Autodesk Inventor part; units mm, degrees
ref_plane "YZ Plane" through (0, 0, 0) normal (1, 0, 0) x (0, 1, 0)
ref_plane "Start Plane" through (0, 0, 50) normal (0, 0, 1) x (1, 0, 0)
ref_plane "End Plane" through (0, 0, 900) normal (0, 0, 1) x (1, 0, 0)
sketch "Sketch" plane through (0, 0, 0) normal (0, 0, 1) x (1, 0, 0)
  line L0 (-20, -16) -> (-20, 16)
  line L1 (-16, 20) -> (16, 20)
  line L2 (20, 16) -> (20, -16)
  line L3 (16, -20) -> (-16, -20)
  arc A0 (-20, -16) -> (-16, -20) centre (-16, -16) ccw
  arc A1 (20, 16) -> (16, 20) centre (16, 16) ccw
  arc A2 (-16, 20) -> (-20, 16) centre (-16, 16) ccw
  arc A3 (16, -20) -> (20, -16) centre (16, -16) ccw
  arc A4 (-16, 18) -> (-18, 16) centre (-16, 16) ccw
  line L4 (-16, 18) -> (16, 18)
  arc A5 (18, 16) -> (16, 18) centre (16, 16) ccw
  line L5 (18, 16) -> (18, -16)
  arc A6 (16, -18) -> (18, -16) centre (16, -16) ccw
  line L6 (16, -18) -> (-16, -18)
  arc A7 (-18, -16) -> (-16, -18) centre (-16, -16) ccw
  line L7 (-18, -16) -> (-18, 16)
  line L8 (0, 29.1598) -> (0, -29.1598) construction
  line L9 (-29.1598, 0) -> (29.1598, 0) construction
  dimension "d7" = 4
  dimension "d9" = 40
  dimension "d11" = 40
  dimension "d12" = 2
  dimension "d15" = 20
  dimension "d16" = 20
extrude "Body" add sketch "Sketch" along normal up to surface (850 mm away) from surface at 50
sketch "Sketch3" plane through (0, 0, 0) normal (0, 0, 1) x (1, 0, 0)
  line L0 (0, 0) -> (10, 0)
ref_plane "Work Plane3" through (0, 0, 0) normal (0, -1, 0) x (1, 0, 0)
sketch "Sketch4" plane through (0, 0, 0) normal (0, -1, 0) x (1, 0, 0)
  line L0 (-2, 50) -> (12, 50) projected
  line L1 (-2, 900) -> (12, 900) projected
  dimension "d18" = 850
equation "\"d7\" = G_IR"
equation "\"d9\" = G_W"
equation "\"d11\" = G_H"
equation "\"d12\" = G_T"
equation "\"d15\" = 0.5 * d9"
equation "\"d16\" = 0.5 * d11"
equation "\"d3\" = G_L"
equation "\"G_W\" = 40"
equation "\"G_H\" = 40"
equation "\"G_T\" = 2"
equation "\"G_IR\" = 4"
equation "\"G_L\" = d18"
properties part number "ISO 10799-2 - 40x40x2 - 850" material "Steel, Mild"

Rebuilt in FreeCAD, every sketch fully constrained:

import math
import FreeCAD as App
import Part
import Sketcher
from FreeCAD import Vector
Q = App.Units.Quantity

doc = App.newDocument("Part")
body = doc.addObject("PartDesign::Body", "Body")

# Sketch on XY plane
sketch1 = body.newObject("Sketcher::SketchObject", "Sketch")
sketch1.AttachmentSupport = (doc.getObject("XY_Plane"), [""])
sketch1.MapMode = "FlatFace"
sketch1.AttachmentOffset = App.Placement(Vector(0, 0, 50), App.Rotation())
sketch1.addGeometry([
    Part.LineSegment(Vector(-20, 16, 0), Vector(-20, -16, 0)),  # 0
    Part.ArcOfCircle(Part.Circle(Vector(-16, -16, 0), Vector(0, 0, 1), 4), math.radians(180), math.radians(270)),  # 1
    Part.LineSegment(Vector(-16, -20, 0), Vector(16, -20, 0)),  # 2
    Part.ArcOfCircle(Part.Circle(Vector(16, -16, 0), Vector(0, 0, 1), 4), math.radians(-90), math.radians(0)),  # 3
    Part.LineSegment(Vector(20, -16, 0), Vector(20, 16, 0)),  # 4
    Part.ArcOfCircle(Part.Circle(Vector(16, 16, 0), Vector(0, 0, 1), 4), math.radians(0), math.radians(90)),  # 5
    Part.LineSegment(Vector(16, 20, 0), Vector(-16, 20, 0)),  # 6
    Part.ArcOfCircle(Part.Circle(Vector(-16, 16, 0), Vector(0, 0, 1), 4), math.radians(90), math.radians(180)),  # 7
    Part.ArcOfCircle(Part.Circle(Vector(-16, 16, 0), Vector(0, 0, 1), 2), math.radians(90), math.radians(180)),  # 8
    Part.LineSegment(Vector(-16, 18, 0), Vector(16, 18, 0)),  # 9
    Part.ArcOfCircle(Part.Circle(Vector(16, 16, 0), Vector(0, 0, 1), 2), math.radians(0), math.radians(90)),  # 10
    Part.LineSegment(Vector(18, 16, 0), Vector(18, -16, 0)),  # 11
    Part.ArcOfCircle(Part.Circle(Vector(16, -16, 0), Vector(0, 0, 1), 2), math.radians(-90), math.radians(0)),  # 12
    Part.LineSegment(Vector(16, -18, 0), Vector(-16, -18, 0)),  # 13
    Part.ArcOfCircle(Part.Circle(Vector(-16, -16, 0), Vector(0, 0, 1), 2), math.radians(180), math.radians(270)),  # 14
    Part.LineSegment(Vector(-18, -16, 0), Vector(-18, 16, 0)),  # 15
], False)
sketch1.addConstraint([
    Sketcher.Constraint("Tangent", 0, 2, 1, 1),
    Sketcher.Constraint("Tangent", 1, 2, 2, 1),
    Sketcher.Constraint("Tangent", 2, 2, 3, 1),
    Sketcher.Constraint("Tangent", 3, 2, 4, 1),
    Sketcher.Constraint("Tangent", 4, 2, 5, 1),
    Sketcher.Constraint("Tangent", 5, 2, 6, 1),
    Sketcher.Constraint("Tangent", 6, 2, 7, 1),
    Sketcher.Constraint("Tangent", 7, 2, 0, 1),
    Sketcher.Constraint("Tangent", 8, 1, 9, 1),
    Sketcher.Constraint("Tangent", 9, 2, 10, 2),
    Sketcher.Constraint("Tangent", 10, 1, 11, 1),
    Sketcher.Constraint("Tangent", 11, 2, 12, 2),
    Sketcher.Constraint("Tangent", 12, 1, 13, 1),
    Sketcher.Constraint("Tangent", 13, 2, 14, 2),
    Sketcher.Constraint("Tangent", 14, 1, 15, 1),
    Sketcher.Constraint("Tangent", 15, 2, 8, 2),
    Sketcher.Constraint("Vertical", 0),
    Sketcher.Constraint("Horizontal", 2),
    Sketcher.Constraint("Vertical", 4),
    Sketcher.Constraint("Horizontal", 6),
    Sketcher.Constraint("Horizontal", 9),
    Sketcher.Constraint("Vertical", 11),
    Sketcher.Constraint("Horizontal", 13),
    Sketcher.Constraint("Vertical", 15),
    Sketcher.Constraint("Coincident", 8, 3, 7, 3),
    Sketcher.Constraint("Coincident", 10, 3, 5, 3),
    Sketcher.Constraint("Coincident", 12, 3, 3, 3),
    Sketcher.Constraint("Equal", 1, 3),
    Sketcher.Constraint("Equal", 3, 5),
    Sketcher.Constraint("Equal", 5, 7),
    Sketcher.Constraint("Equal", 12, 14),
    Sketcher.Constraint("Symmetric", 1, 3, 5, 3, -1, 1),
    Sketcher.Constraint("Equal", 13, 0),
    Sketcher.Constraint("Radius", 1, Q("4 mm")),
    Sketcher.Constraint("Radius", 8, Q("2 mm")),
    Sketcher.Constraint("DistanceX", 0, 2, -1, 1, Q("20 mm")),
])
pad1 = body.newObject("PartDesign::Pad", "Pad")
pad1.Profile = sketch1
pad1.Length = 850

doc.recompute()
